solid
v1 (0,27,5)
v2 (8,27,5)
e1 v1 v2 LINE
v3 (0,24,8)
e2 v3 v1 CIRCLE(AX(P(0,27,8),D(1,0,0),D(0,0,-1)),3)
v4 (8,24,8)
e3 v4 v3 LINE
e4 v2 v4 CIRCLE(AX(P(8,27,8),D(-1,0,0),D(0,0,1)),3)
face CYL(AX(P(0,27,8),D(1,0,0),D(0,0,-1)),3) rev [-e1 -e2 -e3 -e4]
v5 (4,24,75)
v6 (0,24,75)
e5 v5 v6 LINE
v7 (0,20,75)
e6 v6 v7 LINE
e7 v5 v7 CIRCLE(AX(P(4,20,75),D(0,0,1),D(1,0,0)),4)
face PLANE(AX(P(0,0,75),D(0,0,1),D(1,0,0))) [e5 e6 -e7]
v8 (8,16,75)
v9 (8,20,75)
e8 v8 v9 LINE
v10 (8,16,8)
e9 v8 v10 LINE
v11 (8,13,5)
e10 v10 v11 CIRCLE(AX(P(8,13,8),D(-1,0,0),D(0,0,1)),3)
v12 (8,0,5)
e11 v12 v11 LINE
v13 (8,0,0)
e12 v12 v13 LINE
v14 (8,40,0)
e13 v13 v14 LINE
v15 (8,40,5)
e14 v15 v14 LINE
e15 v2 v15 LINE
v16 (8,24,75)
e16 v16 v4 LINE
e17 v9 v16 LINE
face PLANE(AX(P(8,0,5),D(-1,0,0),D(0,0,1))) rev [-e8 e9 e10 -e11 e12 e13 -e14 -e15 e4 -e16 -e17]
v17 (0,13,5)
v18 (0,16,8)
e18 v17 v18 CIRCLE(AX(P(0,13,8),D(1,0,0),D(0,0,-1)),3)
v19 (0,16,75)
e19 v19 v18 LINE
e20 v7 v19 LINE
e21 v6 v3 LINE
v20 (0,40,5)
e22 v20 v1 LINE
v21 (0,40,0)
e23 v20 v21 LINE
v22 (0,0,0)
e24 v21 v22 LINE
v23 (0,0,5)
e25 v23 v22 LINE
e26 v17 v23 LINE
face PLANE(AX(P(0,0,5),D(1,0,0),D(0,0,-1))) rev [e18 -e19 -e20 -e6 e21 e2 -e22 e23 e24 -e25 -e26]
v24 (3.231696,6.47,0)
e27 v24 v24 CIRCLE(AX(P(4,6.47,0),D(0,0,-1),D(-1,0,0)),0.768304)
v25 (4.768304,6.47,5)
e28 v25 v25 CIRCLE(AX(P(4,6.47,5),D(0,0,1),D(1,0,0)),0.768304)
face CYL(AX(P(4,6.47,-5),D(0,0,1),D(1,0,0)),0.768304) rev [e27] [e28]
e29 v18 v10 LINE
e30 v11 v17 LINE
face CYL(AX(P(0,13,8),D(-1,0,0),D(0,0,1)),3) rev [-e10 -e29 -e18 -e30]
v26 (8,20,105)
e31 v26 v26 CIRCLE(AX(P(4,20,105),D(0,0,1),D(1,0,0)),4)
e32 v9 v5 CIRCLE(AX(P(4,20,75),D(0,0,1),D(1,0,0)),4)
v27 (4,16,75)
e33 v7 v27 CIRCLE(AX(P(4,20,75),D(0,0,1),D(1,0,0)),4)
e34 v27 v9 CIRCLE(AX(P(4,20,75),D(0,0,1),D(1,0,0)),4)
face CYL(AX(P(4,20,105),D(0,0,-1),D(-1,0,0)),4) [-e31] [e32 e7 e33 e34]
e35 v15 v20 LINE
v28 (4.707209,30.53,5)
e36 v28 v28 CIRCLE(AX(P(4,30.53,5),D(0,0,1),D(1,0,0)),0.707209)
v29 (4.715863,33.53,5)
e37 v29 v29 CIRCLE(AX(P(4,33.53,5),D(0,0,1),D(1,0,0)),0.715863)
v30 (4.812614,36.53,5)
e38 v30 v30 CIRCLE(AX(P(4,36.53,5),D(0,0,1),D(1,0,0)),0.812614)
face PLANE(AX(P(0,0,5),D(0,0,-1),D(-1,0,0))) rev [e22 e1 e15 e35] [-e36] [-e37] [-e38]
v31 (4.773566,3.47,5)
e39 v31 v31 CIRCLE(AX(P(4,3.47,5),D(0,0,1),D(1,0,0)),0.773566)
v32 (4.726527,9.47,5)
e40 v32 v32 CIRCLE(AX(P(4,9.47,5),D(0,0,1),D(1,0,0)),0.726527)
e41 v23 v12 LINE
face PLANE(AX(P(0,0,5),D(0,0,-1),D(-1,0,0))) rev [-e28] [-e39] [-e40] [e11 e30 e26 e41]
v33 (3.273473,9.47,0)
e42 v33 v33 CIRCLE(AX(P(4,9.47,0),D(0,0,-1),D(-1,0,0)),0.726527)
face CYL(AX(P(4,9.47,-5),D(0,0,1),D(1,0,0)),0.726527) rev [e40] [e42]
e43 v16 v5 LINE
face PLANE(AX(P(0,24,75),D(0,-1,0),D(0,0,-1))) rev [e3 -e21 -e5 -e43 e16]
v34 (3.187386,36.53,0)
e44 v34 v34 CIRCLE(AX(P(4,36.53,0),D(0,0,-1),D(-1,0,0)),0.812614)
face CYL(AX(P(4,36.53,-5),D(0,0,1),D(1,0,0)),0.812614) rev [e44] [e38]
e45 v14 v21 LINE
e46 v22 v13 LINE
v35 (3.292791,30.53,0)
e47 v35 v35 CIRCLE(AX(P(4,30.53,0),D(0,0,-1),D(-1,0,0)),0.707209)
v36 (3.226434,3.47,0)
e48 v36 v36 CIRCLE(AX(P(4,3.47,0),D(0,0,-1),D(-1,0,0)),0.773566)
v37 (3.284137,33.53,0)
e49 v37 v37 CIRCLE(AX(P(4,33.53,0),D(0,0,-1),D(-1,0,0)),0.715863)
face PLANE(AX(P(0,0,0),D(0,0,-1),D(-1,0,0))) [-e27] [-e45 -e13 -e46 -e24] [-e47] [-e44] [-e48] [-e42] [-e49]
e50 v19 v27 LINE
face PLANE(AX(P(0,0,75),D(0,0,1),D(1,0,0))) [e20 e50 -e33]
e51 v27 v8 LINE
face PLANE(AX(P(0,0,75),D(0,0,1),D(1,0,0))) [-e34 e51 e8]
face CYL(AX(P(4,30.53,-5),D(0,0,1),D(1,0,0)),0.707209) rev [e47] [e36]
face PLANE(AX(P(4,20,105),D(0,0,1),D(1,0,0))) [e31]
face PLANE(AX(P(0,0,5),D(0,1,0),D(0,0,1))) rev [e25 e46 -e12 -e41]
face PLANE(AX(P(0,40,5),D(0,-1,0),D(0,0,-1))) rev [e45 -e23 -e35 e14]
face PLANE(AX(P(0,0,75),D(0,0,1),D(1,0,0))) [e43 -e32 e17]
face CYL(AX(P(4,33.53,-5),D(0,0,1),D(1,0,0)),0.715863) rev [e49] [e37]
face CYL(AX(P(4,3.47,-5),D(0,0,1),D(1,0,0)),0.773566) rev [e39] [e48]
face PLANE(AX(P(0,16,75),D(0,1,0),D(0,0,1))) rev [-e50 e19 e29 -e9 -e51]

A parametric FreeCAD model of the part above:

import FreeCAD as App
import Part
import Sketcher

V = App.Vector
Q = App.Units.Quantity


def edges_at(feature, points):
    """Names of the edges that pass closest to the given points."""
    edges = feature.Shape.Edges
    near = lambda p: min(range(len(edges)), key=lambda i: edges[i].distToShape(Part.Vertex(*p))[0])
    return sorted({f"Edge{near(p) + 1}" for p in points})

doc = App.newDocument("Part")
body = doc.addObject("PartDesign::Body", "Body")

sketch1 = body.newObject("Sketcher::SketchObject", "Sketch")
sketch1.AttachmentSupport = (doc.getObject("XY_Plane"), [""])
sketch1.MapMode = "FlatFace"
sketch1.addGeometry([
    Part.LineSegment(V(0, 40, 0), V(0, 0, 0)),
    Part.LineSegment(V(0, 0, 0), V(8, 0, 0)),
    Part.LineSegment(V(8, 0, 0), V(8, 40, 0)),
    Part.LineSegment(V(8, 40, 0), V(0, 40, 0)),
], False)
sketch1.addConstraint([
    Sketcher.Constraint("Coincident", 0, 2, 1, 1),
    Sketcher.Constraint("Coincident", 1, 2, 2, 1),
    Sketcher.Constraint("Coincident", 2, 2, 3, 1),
    Sketcher.Constraint("Coincident", 3, 2, 0, 1),
    Sketcher.Constraint("Vertical", 0),
    Sketcher.Constraint("Horizontal", 1),
    Sketcher.Constraint("Vertical", 2),
    Sketcher.Constraint("Horizontal", 3),
    Sketcher.Constraint("Coincident", 0, 2, -1, 1),
    Sketcher.Constraint("DistanceX", 1, 1, 1, 2, Q("8 mm")),
    Sketcher.Constraint("DistanceY", 0, 2, 0, 1, Q("40 mm")),
])
pad1 = body.newObject("PartDesign::Pad", "Pad")
pad1.Profile = sketch1
pad1.Length = 5

sketch2 = body.newObject("Sketcher::SketchObject", "Sketch001")
sketch2.AttachmentSupport = (doc.getObject("XY_Plane"), [""])
sketch2.MapMode = "FlatFace"
sketch2.AttachmentOffset = App.Placement(V(0, 0, 5), App.Rotation())
sketch2.addGeometry([
    Part.LineSegment(V(0, 24, 0), V(0, 16, 0)),
    Part.LineSegment(V(0, 16, 0), V(8, 16, 0)),
    Part.LineSegment(V(8, 16, 0), V(8, 24, 0)),
    Part.LineSegment(V(8, 24, 0), V(0, 24, 0)),
], False)
sketch2.addConstraint([
    Sketcher.Constraint("Coincident", 0, 2, 1, 1),
    Sketcher.Constraint("Coincident", 1, 2, 2, 1),
    Sketcher.Constraint("Coincident", 2, 2, 3, 1),
    Sketcher.Constraint("Coincident", 3, 2, 0, 1),
    Sketcher.Constraint("Vertical", 0),
    Sketcher.Constraint("Horizontal", 1),
    Sketcher.Constraint("Vertical", 2),
    Sketcher.Constraint("Horizontal", 3),
    Sketcher.Constraint("PointOnObject", 0, 2, -2),
    Sketcher.Constraint("Equal", 3, 0),
    Sketcher.Constraint("DistanceX", 1, 1, 1, 2, Q("8 mm")),
    Sketcher.Constraint("DistanceY", -1, 1, 0, 2, Q("16 mm")),
])
pad2 = body.newObject("PartDesign::Pad", "Pad001")
pad2.Profile = sketch2
pad2.Length = 70

sketch3 = body.newObject("Sketcher::SketchObject", "Sketch002")
sketch3.AttachmentSupport = (doc.getObject("XY_Plane"), [""])
sketch3.MapMode = "FlatFace"
sketch3.AttachmentOffset = App.Placement(V(0, 0, 75), App.Rotation())
sketch3.addGeometry(Part.Circle(V(4, 20, 0), V(0, 0, 1), 4), False)
sketch3.addConstraint([
    Sketcher.Constraint("Diameter", 0, Q("8 mm")),
    Sketcher.Constraint("DistanceX", -1, 1, 0, 3, Q("4 mm")),
    Sketcher.Constraint("DistanceY", -1, 1, 0, 3, Q("20 mm")),
])
pad3 = body.newObject("PartDesign::Pad", "Pad002")
pad3.Profile = sketch3
pad3.Length = 30

sketch4 = body.newObject("Sketcher::SketchObject", "Sketch003")
sketch4.AttachmentSupport = (doc.getObject("XY_Plane"), [""])
sketch4.MapMode = "FlatFace"
sketch4.AttachmentOffset = App.Placement(V(0, 0, 5), App.Rotation())
sketch4.addGeometry([
    Part.Circle(V(4, 3.47, 0), V(0, 0, 1), 0.773566),
    Part.Circle(V(4, 6.47, 0), V(0, 0, 1), 0.768304),
    Part.Circle(V(4, 9.47, 0), V(0, 0, 1), 0.726527),
    Part.Circle(V(4, 30.53, 0), V(0, 0, 1), 0.707209),
    Part.Circle(V(4, 33.53, 0), V(0, 0, 1), 0.715863),
    Part.Circle(V(4, 36.53, 0), V(0, 0, 1), 0.812614),
], False)
sketch4.addConstraint([
    Sketcher.Constraint("Vertical", 0, 3, 1, 3),
    Sketcher.Constraint("Vertical", 1, 3, 2, 3),
    Sketcher.Constraint("Vertical", 2, 3, 3, 3),
    Sketcher.Constraint("Vertical", 3, 3, 4, 3),
    Sketcher.Constraint("Vertical", 4, 3, 5, 3),
    Sketcher.Constraint("DistanceX", -1, 1, 0, 3, Q("4 mm")),
    Sketcher.Constraint("DistanceY", 0, 3, 1, 3, Q("3 mm")),
    Sketcher.Constraint("DistanceY", 1, 3, 2, 3, Q("3 mm")),
    Sketcher.Constraint("DistanceY", 3, 3, 4, 3, Q("3 mm")),
    Sketcher.Constraint("DistanceY", 4, 3, 5, 3, Q("3 mm")),
    Sketcher.Constraint("Diameter", 0, Q("1.547131 mm")),
    Sketcher.Constraint("Diameter", 1, Q("1.536608 mm")),
    Sketcher.Constraint("Diameter", 3, Q("1.414419 mm")),
    Sketcher.Constraint("Diameter", 5, Q("1.625229 mm")),
    Sketcher.Constraint("DistanceY", -1, 1, 0, 3, Q("3.47 mm")),
    Sketcher.Constraint("DistanceY", -1, 1, 3, 3, Q("30.53 mm")),
    Sketcher.Constraint("Diameter", 2, Q("1.453053 mm")),
    Sketcher.Constraint("Diameter", 4, Q("1.431726 mm")),
])
pocket1 = body.newObject("PartDesign::Pocket", "Pocket")
pocket1.Profile = sketch4
pocket1.Length = 10
doc.recompute()

fillet = body.newObject("PartDesign::Fillet", "Fillet")
fillet.Base = (pocket1, edges_at(pocket1, [(4, 16, 5), (4, 24, 5)]))
fillet.Radius = 3

doc.recompute()
